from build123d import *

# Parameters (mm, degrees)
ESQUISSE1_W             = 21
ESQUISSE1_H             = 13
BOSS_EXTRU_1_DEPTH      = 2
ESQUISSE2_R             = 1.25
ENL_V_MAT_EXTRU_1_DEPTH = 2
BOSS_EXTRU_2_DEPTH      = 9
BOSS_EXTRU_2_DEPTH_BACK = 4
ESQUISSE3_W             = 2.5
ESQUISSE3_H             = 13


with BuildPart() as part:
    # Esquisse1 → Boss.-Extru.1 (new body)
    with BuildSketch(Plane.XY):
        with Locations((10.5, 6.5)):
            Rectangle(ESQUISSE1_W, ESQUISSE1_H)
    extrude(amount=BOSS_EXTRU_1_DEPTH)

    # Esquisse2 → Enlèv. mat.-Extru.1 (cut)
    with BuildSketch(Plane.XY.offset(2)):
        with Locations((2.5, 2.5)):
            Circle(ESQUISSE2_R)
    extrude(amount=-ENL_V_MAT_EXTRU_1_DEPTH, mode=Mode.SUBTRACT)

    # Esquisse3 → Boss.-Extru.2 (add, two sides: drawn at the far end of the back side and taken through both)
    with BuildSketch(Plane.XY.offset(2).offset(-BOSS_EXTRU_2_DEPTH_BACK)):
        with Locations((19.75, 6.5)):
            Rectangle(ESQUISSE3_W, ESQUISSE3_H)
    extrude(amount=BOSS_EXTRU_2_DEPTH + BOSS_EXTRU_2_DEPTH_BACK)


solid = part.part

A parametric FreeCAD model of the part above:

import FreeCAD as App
import Part
import Sketcher
Q = App.Units.Quantity


def add_polygon(sketch, points):
    """Adds a closed chain of lines whose ends are joined by coincident constraints."""
    first, n = sketch.GeometryCount, len(points)
    for a, b in zip(points, points[1:] + points[:1]):
        sketch.addGeometry(Part.LineSegment(App.Vector(*a, 0), App.Vector(*b, 0)), False)
    for i in range(n):
        sketch.addConstraint(Sketcher.Constraint("Coincident", first + i, 2, first + (i + 1) % n, 1))

doc = App.newDocument("Part")
body = doc.addObject("PartDesign::Body", "Body")

# Sketch on XY plane
sketch1 = doc.addObject("Sketcher::SketchObject", "Sketch")
body.addObject(sketch1)
sketch1.AttachmentSupport = (doc.XY_Plane, [""])
sketch1.MapMode = "FlatFace"
add_polygon(sketch1, [(0, 13), (0, 0), (21, 0), (21, 13)])  # lines 0-3
sketch1.addConstraint(Sketcher.Constraint("Vertical", 0))
sketch1.addConstraint(Sketcher.Constraint("Horizontal", 1))
sketch1.addConstraint(Sketcher.Constraint("Vertical", 2))
sketch1.addConstraint(Sketcher.Constraint("Horizontal", 3))
sketch1.addConstraint(Sketcher.Constraint("Coincident", 0, 2, -1, 1))
sketch1.addConstraint(Sketcher.Constraint("DistanceX", 1, 1, 1, 2, Q("21 mm")))
sketch1.addConstraint(Sketcher.Constraint("DistanceY", 0, 2, 0, 1, Q("13 mm")))
pad1 = doc.addObject("PartDesign::Pad", "Pad")
body.addObject(pad1)
pad1.Profile = sketch1
pad1.Length = 2

# Sketch on XY plane
sketch2 = doc.addObject("Sketcher::SketchObject", "Sketch001")
body.addObject(sketch2)
sketch2.AttachmentSupport = (doc.XY_Plane, [""])
sketch2.MapMode = "FlatFace"
sketch2.AttachmentOffset = App.Placement(App.Vector(0, 0, 2), App.Rotation())
sketch2.addGeometry(Part.Circle(App.Vector(2.5, 2.5, 0), App.Vector(0, 0, 1), 1.25), False)
sketch2.addConstraint(Sketcher.Constraint("Diameter", 0, Q("2.5 mm")))
sketch2.addConstraint(Sketcher.Constraint("DistanceX", -1, 1, 0, 3, Q("2.5 mm")))
sketch2.addConstraint(Sketcher.Constraint("DistanceY", -1, 1, 0, 3, Q("2.5 mm")))
pocket1 = doc.addObject("PartDesign::Pocket", "Pocket")
body.addObject(pocket1)
pocket1.Profile = sketch2
pocket1.Length = 2

# Sketch on XY plane
sketch3 = doc.addObject("Sketcher::SketchObject", "Sketch002")
body.addObject(sketch3)
sketch3.AttachmentSupport = (doc.XY_Plane, [""])
sketch3.MapMode = "FlatFace"
sketch3.AttachmentOffset = App.Placement(App.Vector(0, 0, 2), App.Rotation())
add_polygon(sketch3, [(18.5, 13), (18.5, 0), (21, 0), (21, 13)])  # lines 0-3
sketch3.addConstraint(Sketcher.Constraint("Vertical", 0))
sketch3.addConstraint(Sketcher.Constraint("Horizontal", 1))
sketch3.addConstraint(Sketcher.Constraint("Vertical", 2))
sketch3.addConstraint(Sketcher.Constraint("Horizontal", 3))
sketch3.addConstraint(Sketcher.Constraint("PointOnObject", 0, 2, -1))
sketch3.addConstraint(Sketcher.Constraint("DistanceY", 0, 2, 0, 1, Q("13 mm")))
sketch3.addConstraint(Sketcher.Constraint("DistanceX", 1, 1, 1, 2, Q("2.5 mm")))
sketch3.addConstraint(Sketcher.Constraint("DistanceX", -1, 1, 1, 2, Q("21 mm")))
pad2 = doc.addObject("PartDesign::Pad", "Pad001")
body.addObject(pad2)
pad2.Profile = sketch3
pad2.Type = "TwoLengths"
pad2.Length = 9
pad2.Length2 = 4

doc.recompute()
